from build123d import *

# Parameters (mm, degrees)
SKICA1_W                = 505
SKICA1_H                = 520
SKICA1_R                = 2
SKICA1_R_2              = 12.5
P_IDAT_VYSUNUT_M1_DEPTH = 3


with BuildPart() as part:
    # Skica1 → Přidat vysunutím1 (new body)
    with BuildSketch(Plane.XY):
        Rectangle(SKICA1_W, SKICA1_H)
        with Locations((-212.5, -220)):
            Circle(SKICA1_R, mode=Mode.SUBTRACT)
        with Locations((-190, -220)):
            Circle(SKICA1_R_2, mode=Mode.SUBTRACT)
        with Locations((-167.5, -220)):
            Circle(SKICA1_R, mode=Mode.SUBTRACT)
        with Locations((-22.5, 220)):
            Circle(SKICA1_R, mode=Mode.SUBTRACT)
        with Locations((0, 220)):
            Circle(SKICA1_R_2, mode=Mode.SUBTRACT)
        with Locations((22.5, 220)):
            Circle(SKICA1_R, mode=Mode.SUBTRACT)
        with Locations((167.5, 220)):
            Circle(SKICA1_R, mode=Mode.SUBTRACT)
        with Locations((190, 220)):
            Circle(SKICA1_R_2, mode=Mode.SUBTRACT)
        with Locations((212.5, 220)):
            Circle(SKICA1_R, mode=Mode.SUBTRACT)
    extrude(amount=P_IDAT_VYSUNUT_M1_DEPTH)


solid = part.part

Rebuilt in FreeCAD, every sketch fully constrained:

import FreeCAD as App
import Part
import Sketcher

V = App.Vector

doc = App.newDocument("Part")
body = doc.addObject("PartDesign::Body", "Body")

# Sketch on XY plane
sketch1 = body.newObject("Sketcher::SketchObject", "Sketch")
sketch1.AttachmentSupport = (doc.getObject("XY_Plane"), [""])
sketch1.MapMode = "FlatFace"
sketch1.addGeometry([
    Part.LineSegment(V(-252.5, 260, 0), V(-252.5, -260, 0)),  # 0
    Part.LineSegment(V(-252.5, -260, 0), V(252.5, -260, 0)),  # 1
    Part.LineSegment(V(252.5, -260, 0), V(252.5, 260, 0)),  # 2
    Part.LineSegment(V(252.5, 260, 0), V(-252.5, 260, 0)),  # 3
    Part.Circle(V(-212.5, -220, 0), V(0, 0, 1), 2),  # 4
    Part.Circle(V(-190, -220, 0), V(0, 0, 1), 12.5),  # 5
    Part.Circle(V(-167.5, -220, 0), V(0, 0, 1), 2),  # 6
    Part.Circle(V(-22.5, 220, 0), V(0, 0, 1), 2),  # 7
    Part.Circle(V(0, 220, 0), V(0, 0, 1), 12.5),  # 8
    Part.Circle(V(22.5, 220, 0), V(0, 0, 1), 2),  # 9
    Part.Circle(V(167.5, 220, 0), V(0, 0, 1), 2),  # 10
    Part.Circle(V(190, 220, 0), V(0, 0, 1), 12.5),  # 11
    Part.Circle(V(212.5, 220, 0), V(0, 0, 1), 2),  # 12
], False)
sketch1.addConstraint([
    Sketcher.Constraint("Coincident", 0, 2, 1, 1),
    Sketcher.Constraint("Coincident", 1, 2, 2, 1),
    Sketcher.Constraint("Coincident", 2, 2, 3, 1),
    Sketcher.Constraint("Coincident", 3, 2, 0, 1),
    Sketcher.Constraint("Vertical", 0),
    Sketcher.Constraint("Horizontal", 1),
    Sketcher.Constraint("Vertical", 2),
    Sketcher.Constraint("Horizontal", 3),
    Sketcher.Constraint("Equal", 4, 6),
    Sketcher.Constraint("Equal", 6, 7),
    Sketcher.Constraint("Equal", 5, 8),
    Sketcher.Constraint("Equal", 7, 9),
    Sketcher.Constraint("Equal", 9, 10),
    Sketcher.Constraint("Equal", 8, 11),
    Sketcher.Constraint("Equal", 10, 12),
    Sketcher.Constraint("Symmetric", 6, 3, 10, 3, -1, 1),
    Sketcher.Constraint("Symmetric", 5, 3, 11, 3, -1, 1),
    Sketcher.Constraint("Symmetric", 4, 3, 12, 3, -1, 1),
    Sketcher.Constraint("Symmetric", 0, 2, 2, 2, -1, 1),
    Sketcher.Constraint("Symmetric", 7, 3, 9, 3, -2),
    Sketcher.Constraint("PointOnObject", 8, 3, -2),
    Sketcher.Constraint("Horizontal", 4, 3, 5, 3),
    Sketcher.Constraint("Horizontal", 5, 3, 6, 3),
    Sketcher.Constraint("Horizontal", 7, 3, 8, 3),
    Sketcher.Constraint("Horizontal", 9, 3, 10, 3),
    Sketcher.Constraint("Diameter", 4, 4.0),
    Sketcher.Constraint("Diameter", 5, 25.0),
    Sketcher.Constraint("DistanceX", 1, 1, 1, 2, 505.0),
    Sketcher.Constraint("DistanceY", 0, 2, 0, 1, 520.0),
    Sketcher.Constraint("DistanceY", 4, 3, -1, 1, 220.0),
    Sketcher.Constraint("DistanceX", 5, 3, -1, 1, 190.0),
    Sketcher.Constraint("DistanceX", 4, 3, 6, 3, 45.0),
    Sketcher.Constraint("DistanceX", 6, 3, 7, 3, 145.0),
    Sketcher.Constraint("DistanceX", 7, 3, 9, 3, 45.0),
])
pad1 = body.newObject("PartDesign::Pad", "Pad")
pad1.Profile = sketch1
pad1.Length = 3

doc.recompute()
